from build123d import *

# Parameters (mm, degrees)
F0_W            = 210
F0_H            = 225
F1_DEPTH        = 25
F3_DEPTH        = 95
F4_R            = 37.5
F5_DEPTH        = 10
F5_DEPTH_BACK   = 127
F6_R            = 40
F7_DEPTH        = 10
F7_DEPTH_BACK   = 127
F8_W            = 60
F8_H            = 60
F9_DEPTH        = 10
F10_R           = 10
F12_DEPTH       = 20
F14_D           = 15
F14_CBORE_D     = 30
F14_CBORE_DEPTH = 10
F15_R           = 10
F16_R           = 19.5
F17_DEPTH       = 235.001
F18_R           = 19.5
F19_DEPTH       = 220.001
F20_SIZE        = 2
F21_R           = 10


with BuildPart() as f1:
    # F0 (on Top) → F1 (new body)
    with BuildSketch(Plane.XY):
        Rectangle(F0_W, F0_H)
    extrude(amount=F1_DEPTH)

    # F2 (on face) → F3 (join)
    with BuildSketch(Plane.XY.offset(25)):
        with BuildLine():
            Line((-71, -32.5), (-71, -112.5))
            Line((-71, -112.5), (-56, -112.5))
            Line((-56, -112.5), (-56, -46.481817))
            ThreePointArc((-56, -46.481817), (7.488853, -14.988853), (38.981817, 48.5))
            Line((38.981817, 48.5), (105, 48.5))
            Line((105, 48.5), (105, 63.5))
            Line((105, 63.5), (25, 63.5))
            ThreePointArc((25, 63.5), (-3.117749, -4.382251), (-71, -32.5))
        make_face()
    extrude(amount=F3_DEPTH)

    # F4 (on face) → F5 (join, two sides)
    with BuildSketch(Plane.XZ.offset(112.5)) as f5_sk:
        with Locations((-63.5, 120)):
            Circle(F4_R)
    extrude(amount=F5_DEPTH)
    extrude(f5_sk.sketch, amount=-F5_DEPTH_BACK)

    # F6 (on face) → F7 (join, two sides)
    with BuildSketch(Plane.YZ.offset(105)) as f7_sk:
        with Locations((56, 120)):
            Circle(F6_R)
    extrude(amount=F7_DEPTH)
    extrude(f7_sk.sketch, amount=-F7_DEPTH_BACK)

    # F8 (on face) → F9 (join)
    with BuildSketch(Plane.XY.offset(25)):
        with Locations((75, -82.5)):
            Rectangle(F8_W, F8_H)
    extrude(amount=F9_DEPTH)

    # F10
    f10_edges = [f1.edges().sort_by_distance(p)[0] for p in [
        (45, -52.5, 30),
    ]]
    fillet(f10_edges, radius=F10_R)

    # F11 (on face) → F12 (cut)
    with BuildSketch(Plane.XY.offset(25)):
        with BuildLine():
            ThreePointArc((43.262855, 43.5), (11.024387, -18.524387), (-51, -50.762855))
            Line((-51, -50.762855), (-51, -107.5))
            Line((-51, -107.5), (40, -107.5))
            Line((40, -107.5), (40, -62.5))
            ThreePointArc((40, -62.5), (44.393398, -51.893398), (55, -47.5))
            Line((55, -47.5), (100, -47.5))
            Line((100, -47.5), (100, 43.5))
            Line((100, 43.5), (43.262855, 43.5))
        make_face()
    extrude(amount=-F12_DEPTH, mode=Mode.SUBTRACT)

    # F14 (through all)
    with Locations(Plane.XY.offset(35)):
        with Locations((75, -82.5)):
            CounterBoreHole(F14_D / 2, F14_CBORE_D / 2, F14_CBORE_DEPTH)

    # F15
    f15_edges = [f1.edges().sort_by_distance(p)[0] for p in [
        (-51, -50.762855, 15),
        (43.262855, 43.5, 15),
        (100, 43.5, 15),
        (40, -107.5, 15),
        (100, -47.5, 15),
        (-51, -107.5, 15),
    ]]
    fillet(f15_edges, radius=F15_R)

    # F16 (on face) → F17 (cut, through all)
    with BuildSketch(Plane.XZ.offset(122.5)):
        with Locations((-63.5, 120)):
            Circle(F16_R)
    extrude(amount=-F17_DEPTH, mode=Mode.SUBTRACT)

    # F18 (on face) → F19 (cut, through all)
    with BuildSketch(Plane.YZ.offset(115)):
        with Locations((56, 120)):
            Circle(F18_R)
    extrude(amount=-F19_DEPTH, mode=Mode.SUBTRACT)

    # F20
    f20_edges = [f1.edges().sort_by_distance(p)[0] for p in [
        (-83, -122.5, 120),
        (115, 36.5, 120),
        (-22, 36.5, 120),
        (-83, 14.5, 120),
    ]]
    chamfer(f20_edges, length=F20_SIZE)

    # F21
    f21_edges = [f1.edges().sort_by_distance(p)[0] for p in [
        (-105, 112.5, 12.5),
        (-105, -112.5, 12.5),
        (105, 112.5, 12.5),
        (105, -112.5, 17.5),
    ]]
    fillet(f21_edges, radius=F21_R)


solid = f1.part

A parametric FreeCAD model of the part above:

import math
import FreeCAD as App
import Part
import Sketcher
from FreeCAD import Vector
Q = App.Units.Quantity


def edges_at(feature, points):
    """Names of the edges that pass closest to the given points."""
    edges = feature.Shape.Edges
    near = lambda p: min(range(len(edges)), key=lambda i: edges[i].distToShape(Part.Vertex(*p))[0])
    return sorted({f"Edge{near(p) + 1}" for p in points})

doc = App.newDocument("Part")
body = doc.addObject("PartDesign::Body", "Body")

# Sketch on XY plane
sketch1 = body.newObject("Sketcher::SketchObject", "Sketch")
sketch1.AttachmentSupport = (doc.getObject("XY_Plane"), [""])
sketch1.MapMode = "FlatFace"
sketch1.addGeometry([
    Part.LineSegment(Vector(-105, 112, 0), Vector(-105, -112, 0)),
    Part.LineSegment(Vector(-105, -112, 0), Vector(105, -112, 0)),
    Part.LineSegment(Vector(105, -112, 0), Vector(105, 112, 0)),
    Part.LineSegment(Vector(105, 112, 0), Vector(-105, 112, 0)),
], False)
sketch1.addConstraint([
    Sketcher.Constraint("Coincident", 0, 2, 1, 1),
    Sketcher.Constraint("Coincident", 1, 2, 2, 1),
    Sketcher.Constraint("Coincident", 2, 2, 3, 1),
    Sketcher.Constraint("Coincident", 3, 2, 0, 1),
    Sketcher.Constraint("Vertical", 0),
    Sketcher.Constraint("Horizontal", 1),
    Sketcher.Constraint("Vertical", 2),
    Sketcher.Constraint("Horizontal", 3),
    Sketcher.Constraint("Symmetric", 0, 2, 2, 2, -1, 1),
    Sketcher.Constraint("DistanceX", 1, 1, 1, 2, Q("210 mm")),
    Sketcher.Constraint("DistanceY", 0, 2, 0, 1, Q("225 mm")),
])
pad1 = body.newObject("PartDesign::Pad", "Pad")
pad1.Profile = sketch1
pad1.Length = 25

# Sketch on XY plane
sketch2 = body.newObject("Sketcher::SketchObject", "Sketch001")
sketch2.AttachmentSupport = (doc.getObject("XY_Plane"), [""])
sketch2.MapMode = "FlatFace"
sketch2.AttachmentOffset = App.Placement(Vector(0, 0, 25), App.Rotation())
sketch2.addGeometry([
    Part.LineSegment(Vector(-71, -32, 0), Vector(-71, -112, 0)),  # 0
    Part.LineSegment(Vector(-71, -112, 0), Vector(-56, -112, 0)),  # 1
    Part.LineSegment(Vector(-56, -112, 0), Vector(-56, -46, 0)),  # 2
    Part.ArcOfCircle(Part.Circle(Vector(-71, 63, 0), Vector(0, 0, 1), 111), math.radians(-82), math.radians(-8)),  # 3
    Part.LineSegment(Vector(39, 48, 0), Vector(105, 48, 0)),  # 4
    Part.LineSegment(Vector(105, 48, 0), Vector(105, 64, 0)),  # 5
    Part.LineSegment(Vector(105, 64, 0), Vector(25, 64, 0)),  # 6
    Part.ArcOfCircle(Part.Circle(Vector(-71, 63, 0), Vector(0, 0, 1), 96), math.radians(-90), math.radians(0)),  # 7
], False)
sketch2.addConstraint([
    Sketcher.Constraint("Coincident", 0, 2, 1, 1),
    Sketcher.Constraint("Coincident", 1, 2, 2, 1),
    Sketcher.Constraint("Coincident", 2, 2, 3, 1),
    Sketcher.Constraint("Coincident", 3, 2, 4, 1),
    Sketcher.Constraint("Coincident", 4, 2, 5, 1),
    Sketcher.Constraint("Coincident", 5, 2, 6, 1),
    Sketcher.Constraint("Coincident", 6, 2, 7, 2),
    Sketcher.Constraint("Coincident", 7, 1, 0, 1),
    Sketcher.Constraint("Vertical", 0),
    Sketcher.Constraint("Horizontal", 1),
    Sketcher.Constraint("Vertical", 2),
    Sketcher.Constraint("Horizontal", 4),
    Sketcher.Constraint("Vertical", 5),
    Sketcher.Constraint("Horizontal", 6),
    Sketcher.Constraint("Coincident", 7, 3, 3, 3),
    Sketcher.Constraint("Horizontal", 7, 3, 5, 2),
    Sketcher.Constraint("Vertical", 7, 3, 0, 2),
    Sketcher.Constraint("Equal", 6, 0),
    Sketcher.Constraint("Equal", 4, 2),
    Sketcher.Constraint("Radius", 3, Q("111 mm")),
    Sketcher.Constraint("Radius", 7, Q("96 mm")),
    Sketcher.Constraint("DistanceX", 1, 1, 1, 2, Q("15 mm")),
    Sketcher.Constraint("DistanceX", 6, 2, 6, 1, Q("80 mm")),
    Sketcher.Constraint("DistanceX", 3, 3, -1, 1, Q("71 mm")),
    Sketcher.Constraint("DistanceY", -1, 1, 3, 3, Q("63.5 mm")),
])
pad2 = body.newObject("PartDesign::Pad", "Pad001")
pad2.Profile = sketch2
pad2.Length = 95

# Sketch on XZ plane
sketch3 = body.newObject("Sketcher::SketchObject", "Sketch002")
sketch3.AttachmentSupport = (doc.getObject("XZ_Plane"), [""])
sketch3.MapMode = "FlatFace"
sketch3.AttachmentOffset = App.Placement(Vector(0, 0, 112.5), App.Rotation())
sketch3.addGeometry(Part.Circle(Vector(-64, 120, 0), Vector(0, 0, 1), 38), False)
sketch3.addConstraint([
    Sketcher.Constraint("Diameter", 0, Q("75 mm")),
    Sketcher.Constraint("DistanceY", -1, 1, 0, 3, Q("120 mm")),
    Sketcher.Constraint("DistanceX", 0, 3, -1, 1, Q("63.5 mm")),
])
pad3 = body.newObject("PartDesign::Pad", "Pad002")
pad3.Profile = sketch3
pad3.Type = "TwoLengths"
pad3.Length = 10
pad3.Length2 = 127

# Sketch on YZ plane
sketch4 = body.newObject("Sketcher::SketchObject", "Sketch003")
sketch4.AttachmentSupport = (doc.getObject("YZ_Plane"), [""])
sketch4.MapMode = "FlatFace"
sketch4.AttachmentOffset = App.Placement(Vector(0, 0, 105), App.Rotation())
sketch4.addGeometry(Part.Circle(Vector(56, 120, 0), Vector(0, 0, 1), 40), False)
sketch4.addConstraint([
    Sketcher.Constraint("Diameter", 0, Q("80 mm")),
    Sketcher.Constraint("DistanceX", -1, 1, 0, 3, Q("56 mm")),
    Sketcher.Constraint("DistanceY", -1, 1, 0, 3, Q("120 mm")),
])
pad4 = body.newObject("PartDesign::Pad", "Pad003")
pad4.Profile = sketch4
pad4.Type = "TwoLengths"
pad4.Length = 10
pad4.Length2 = 127

# Sketch on XY plane
sketch5 = body.newObject("Sketcher::SketchObject", "Sketch004")
sketch5.AttachmentSupport = (doc.getObject("XY_Plane"), [""])
sketch5.MapMode = "FlatFace"
sketch5.AttachmentOffset = App.Placement(Vector(0, 0, 25), App.Rotation())
sketch5.addGeometry([
    Part.LineSegment(Vector(45, -52, 0), Vector(45, -112, 0)),
    Part.LineSegment(Vector(45, -112, 0), Vector(105, -112, 0)),
    Part.LineSegment(Vector(105, -112, 0), Vector(105, -52, 0)),
    Part.LineSegment(Vector(105, -52, 0), Vector(45, -52, 0)),
], False)
sketch5.addConstraint([
    Sketcher.Constraint("Coincident", 0, 2, 1, 1),
    Sketcher.Constraint("Coincident", 1, 2, 2, 1),
    Sketcher.Constraint("Coincident", 2, 2, 3, 1),
    Sketcher.Constraint("Coincident", 3, 2, 0, 1),
    Sketcher.Constraint("Vertical", 0),
    Sketcher.Constraint("Horizontal", 1),
    Sketcher.Constraint("Vertical", 2),
    Sketcher.Constraint("Horizontal", 3),
    Sketcher.Constraint("Equal", 3, 0),
    Sketcher.Constraint("DistanceX", 1, 1, 1, 2, Q("60 mm")),
    Sketcher.Constraint("DistanceX", -1, 1, 0, 2, Q("45 mm")),
    Sketcher.Constraint("DistanceY", 0, 2, -1, 1, Q("112.5 mm")),
])
pad5 = body.newObject("PartDesign::Pad", "Pad004")
pad5.Profile = sketch5
pad5.Length = 10
doc.recompute()

fillet = body.newObject("PartDesign::Fillet", "Fillet")
fillet.Base = (pad5, edges_at(pad5, [(45, -52.5, 30)]))
fillet.Radius = 10

# Sketch on XY plane
sketch6 = body.newObject("Sketcher::SketchObject", "Sketch005")
sketch6.AttachmentSupport = (doc.getObject("XY_Plane"), [""])
sketch6.MapMode = "FlatFace"
sketch6.AttachmentOffset = App.Placement(Vector(0, 0, 25), App.Rotation())
sketch6.addGeometry([
    Part.ArcOfCircle(Part.Circle(Vector(-71, 63, 0), Vector(0, 0, 1), 116), math.radians(-80), math.radians(-10)),  # 0
    Part.LineSegment(Vector(-51, -51, 0), Vector(-51, -108, 0)),  # 1
    Part.LineSegment(Vector(-51, -108, 0), Vector(40, -108, 0)),  # 2
    Part.LineSegment(Vector(40, -108, 0), Vector(40, -62, 0)),  # 3
    Part.ArcOfCircle(Part.Circle(Vector(55, -62, 0), Vector(0, 0, 1), 15), math.radians(90), math.radians(180)),  # 4
    Part.LineSegment(Vector(55, -48, 0), Vector(100, -48, 0)),  # 5
    Part.LineSegment(Vector(100, -48, 0), Vector(100, 44, 0)),  # 6
    Part.LineSegment(Vector(100, 44, 0), Vector(43, 44, 0)),  # 7
], False)
sketch6.addConstraint([
    Sketcher.Constraint("Coincident", 0, 1, 1, 1),
    Sketcher.Constraint("Coincident", 1, 2, 2, 1),
    Sketcher.Constraint("Coincident", 2, 2, 3, 1),
    Sketcher.Constraint("Tangent", 3, 2, 4, 2),
    Sketcher.Constraint("Tangent", 4, 1, 5, 1),
    Sketcher.Constraint("Coincident", 5, 2, 6, 1),
    Sketcher.Constraint("Coincident", 6, 2, 7, 1),
    Sketcher.Constraint("Coincident", 7, 2, 0, 2),
    Sketcher.Constraint("Vertical", 1),
    Sketcher.Constraint("Horizontal", 2),
    Sketcher.Constraint("Vertical", 3),
    Sketcher.Constraint("Horizontal", 5),
    Sketcher.Constraint("Vertical", 6),
    Sketcher.Constraint("Horizontal", 7),
    Sketcher.Constraint("Equal", 7, 1),
    Sketcher.Constraint("Equal", 5, 3),
    Sketcher.Constraint("Equal", 2, 6),
    Sketcher.Constraint("Radius", 0, Q("115.999998 mm")),
    Sketcher.Constraint("Radius", 4, Q("14.999999 mm")),
    Sketcher.Constraint("DistanceX", 2, 1, 2, 2, Q("91 mm")),
    Sketcher.Constraint("DistanceX", 5, 1, 5, 2, Q("45 mm")),
    Sketcher.Constraint("DistanceX", 0, 3, -1, 1, Q("70.999998 mm")),
    Sketcher.Constraint("DistanceX", -1, 1, 4, 3, Q("54.999999 mm")),
    Sketcher.Constraint("DistanceY", -1, 1, 0, 3, Q("63.499998 mm")),
])
pocket1 = body.newObject("PartDesign::Pocket", "Pocket")
pocket1.Profile = sketch6
pocket1.Length = 20

# Sketch on XY plane
sketch7 = body.newObject("Sketcher::SketchObject", "Sketch006")
sketch7.AttachmentSupport = (doc.getObject("XY_Plane"), [""])
sketch7.MapMode = "FlatFace"
sketch7.AttachmentOffset = App.Placement(Vector(0, 0, 35), App.Rotation())
sketch7.addGeometry(Part.Circle(Vector(75, -82, 0), Vector(0, 0, 1), 8), False)
sketch7.addConstraint([
    Sketcher.Constraint("Diameter", 0, Q("15 mm")),
    Sketcher.Constraint("DistanceX", -1, 1, 0, 3, Q("75 mm")),
    Sketcher.Constraint("DistanceY", 0, 3, -1, 1, Q("82.5 mm")),
])
doc.recompute()
hole = body.newObject("PartDesign::Hole", "Hole")
hole.Profile = sketch7
hole.ThreadType = "None"
hole.Diameter = 15
hole.DepthType = "ThroughAll"
hole.HoleCutType = "Counterbore"
hole.HoleCutDiameter = 30
hole.HoleCutDepth = 10
doc.recompute()

fillet2 = body.newObject("PartDesign::Fillet", "Fillet001")
fillet2.Base = (hole, edges_at(hole, [
    (-51, -50.763, 15),
    (43.263, 43.5, 15),
    (100, 43.5, 15),
    (40, -107.5, 15),
    (100, -47.5, 15),
    (-51, -107.5, 15),
]))
fillet2.Radius = 10

# Sketch on XZ plane
sketch8 = body.newObject("Sketcher::SketchObject", "Sketch007")
sketch8.AttachmentSupport = (doc.getObject("XZ_Plane"), [""])
sketch8.MapMode = "FlatFace"
sketch8.AttachmentOffset = App.Placement(Vector(0, 0, 122.5), App.Rotation())
sketch8.addGeometry(Part.Circle(Vector(-64, 120, 0), Vector(0, 0, 1), 20), False)
sketch8.addConstraint([
    Sketcher.Constraint("Diameter", 0, Q("39 mm")),
    Sketcher.Constraint("DistanceY", -1, 1, 0, 3, Q("120 mm")),
    Sketcher.Constraint("DistanceX", 0, 3, -1, 1, Q("63.5 mm")),
])
pocket2 = body.newObject("PartDesign::Pocket", "Pocket001")
pocket2.Profile = sketch8
pocket2.Type = "ThroughAll"

# Sketch on YZ plane
sketch9 = body.newObject("Sketcher::SketchObject", "Sketch008")
sketch9.AttachmentSupport = (doc.getObject("YZ_Plane"), [""])
sketch9.MapMode = "FlatFace"
sketch9.AttachmentOffset = App.Placement(Vector(0, 0, 115), App.Rotation())
sketch9.addGeometry(Part.Circle(Vector(56, 120, 0), Vector(0, 0, 1), 20), False)
sketch9.addConstraint([
    Sketcher.Constraint("Diameter", 0, Q("39 mm")),
    Sketcher.Constraint("DistanceX", -1, 1, 0, 3, Q("56 mm")),
    Sketcher.Constraint("DistanceY", -1, 1, 0, 3, Q("120 mm")),
])
pocket3 = body.newObject("PartDesign::Pocket", "Pocket002")
pocket3.Profile = sketch9
pocket3.Type = "ThroughAll"
doc.recompute()

chamfer = body.newObject("PartDesign::Chamfer", "Chamfer")
chamfer.Base = (pocket3, edges_at(pocket3, [
    (-83, -122.5, 120),
    (115, 36.5, 120),
    (-22, 36.5, 120),
    (-83, 14.5, 120),
]))
chamfer.Size = 2
doc.recompute()

fillet3 = body.newObject("PartDesign::Fillet", "Fillet002")
fillet3.Base = (chamfer, edges_at(chamfer, [
    (-105, 112.5, 12.5),
    (-105, -112.5, 12.5),
    (105, 112.5, 12.5),
    (105, -112.5, 17.5),
]))
fillet3.Radius = 10

doc.recompute()
